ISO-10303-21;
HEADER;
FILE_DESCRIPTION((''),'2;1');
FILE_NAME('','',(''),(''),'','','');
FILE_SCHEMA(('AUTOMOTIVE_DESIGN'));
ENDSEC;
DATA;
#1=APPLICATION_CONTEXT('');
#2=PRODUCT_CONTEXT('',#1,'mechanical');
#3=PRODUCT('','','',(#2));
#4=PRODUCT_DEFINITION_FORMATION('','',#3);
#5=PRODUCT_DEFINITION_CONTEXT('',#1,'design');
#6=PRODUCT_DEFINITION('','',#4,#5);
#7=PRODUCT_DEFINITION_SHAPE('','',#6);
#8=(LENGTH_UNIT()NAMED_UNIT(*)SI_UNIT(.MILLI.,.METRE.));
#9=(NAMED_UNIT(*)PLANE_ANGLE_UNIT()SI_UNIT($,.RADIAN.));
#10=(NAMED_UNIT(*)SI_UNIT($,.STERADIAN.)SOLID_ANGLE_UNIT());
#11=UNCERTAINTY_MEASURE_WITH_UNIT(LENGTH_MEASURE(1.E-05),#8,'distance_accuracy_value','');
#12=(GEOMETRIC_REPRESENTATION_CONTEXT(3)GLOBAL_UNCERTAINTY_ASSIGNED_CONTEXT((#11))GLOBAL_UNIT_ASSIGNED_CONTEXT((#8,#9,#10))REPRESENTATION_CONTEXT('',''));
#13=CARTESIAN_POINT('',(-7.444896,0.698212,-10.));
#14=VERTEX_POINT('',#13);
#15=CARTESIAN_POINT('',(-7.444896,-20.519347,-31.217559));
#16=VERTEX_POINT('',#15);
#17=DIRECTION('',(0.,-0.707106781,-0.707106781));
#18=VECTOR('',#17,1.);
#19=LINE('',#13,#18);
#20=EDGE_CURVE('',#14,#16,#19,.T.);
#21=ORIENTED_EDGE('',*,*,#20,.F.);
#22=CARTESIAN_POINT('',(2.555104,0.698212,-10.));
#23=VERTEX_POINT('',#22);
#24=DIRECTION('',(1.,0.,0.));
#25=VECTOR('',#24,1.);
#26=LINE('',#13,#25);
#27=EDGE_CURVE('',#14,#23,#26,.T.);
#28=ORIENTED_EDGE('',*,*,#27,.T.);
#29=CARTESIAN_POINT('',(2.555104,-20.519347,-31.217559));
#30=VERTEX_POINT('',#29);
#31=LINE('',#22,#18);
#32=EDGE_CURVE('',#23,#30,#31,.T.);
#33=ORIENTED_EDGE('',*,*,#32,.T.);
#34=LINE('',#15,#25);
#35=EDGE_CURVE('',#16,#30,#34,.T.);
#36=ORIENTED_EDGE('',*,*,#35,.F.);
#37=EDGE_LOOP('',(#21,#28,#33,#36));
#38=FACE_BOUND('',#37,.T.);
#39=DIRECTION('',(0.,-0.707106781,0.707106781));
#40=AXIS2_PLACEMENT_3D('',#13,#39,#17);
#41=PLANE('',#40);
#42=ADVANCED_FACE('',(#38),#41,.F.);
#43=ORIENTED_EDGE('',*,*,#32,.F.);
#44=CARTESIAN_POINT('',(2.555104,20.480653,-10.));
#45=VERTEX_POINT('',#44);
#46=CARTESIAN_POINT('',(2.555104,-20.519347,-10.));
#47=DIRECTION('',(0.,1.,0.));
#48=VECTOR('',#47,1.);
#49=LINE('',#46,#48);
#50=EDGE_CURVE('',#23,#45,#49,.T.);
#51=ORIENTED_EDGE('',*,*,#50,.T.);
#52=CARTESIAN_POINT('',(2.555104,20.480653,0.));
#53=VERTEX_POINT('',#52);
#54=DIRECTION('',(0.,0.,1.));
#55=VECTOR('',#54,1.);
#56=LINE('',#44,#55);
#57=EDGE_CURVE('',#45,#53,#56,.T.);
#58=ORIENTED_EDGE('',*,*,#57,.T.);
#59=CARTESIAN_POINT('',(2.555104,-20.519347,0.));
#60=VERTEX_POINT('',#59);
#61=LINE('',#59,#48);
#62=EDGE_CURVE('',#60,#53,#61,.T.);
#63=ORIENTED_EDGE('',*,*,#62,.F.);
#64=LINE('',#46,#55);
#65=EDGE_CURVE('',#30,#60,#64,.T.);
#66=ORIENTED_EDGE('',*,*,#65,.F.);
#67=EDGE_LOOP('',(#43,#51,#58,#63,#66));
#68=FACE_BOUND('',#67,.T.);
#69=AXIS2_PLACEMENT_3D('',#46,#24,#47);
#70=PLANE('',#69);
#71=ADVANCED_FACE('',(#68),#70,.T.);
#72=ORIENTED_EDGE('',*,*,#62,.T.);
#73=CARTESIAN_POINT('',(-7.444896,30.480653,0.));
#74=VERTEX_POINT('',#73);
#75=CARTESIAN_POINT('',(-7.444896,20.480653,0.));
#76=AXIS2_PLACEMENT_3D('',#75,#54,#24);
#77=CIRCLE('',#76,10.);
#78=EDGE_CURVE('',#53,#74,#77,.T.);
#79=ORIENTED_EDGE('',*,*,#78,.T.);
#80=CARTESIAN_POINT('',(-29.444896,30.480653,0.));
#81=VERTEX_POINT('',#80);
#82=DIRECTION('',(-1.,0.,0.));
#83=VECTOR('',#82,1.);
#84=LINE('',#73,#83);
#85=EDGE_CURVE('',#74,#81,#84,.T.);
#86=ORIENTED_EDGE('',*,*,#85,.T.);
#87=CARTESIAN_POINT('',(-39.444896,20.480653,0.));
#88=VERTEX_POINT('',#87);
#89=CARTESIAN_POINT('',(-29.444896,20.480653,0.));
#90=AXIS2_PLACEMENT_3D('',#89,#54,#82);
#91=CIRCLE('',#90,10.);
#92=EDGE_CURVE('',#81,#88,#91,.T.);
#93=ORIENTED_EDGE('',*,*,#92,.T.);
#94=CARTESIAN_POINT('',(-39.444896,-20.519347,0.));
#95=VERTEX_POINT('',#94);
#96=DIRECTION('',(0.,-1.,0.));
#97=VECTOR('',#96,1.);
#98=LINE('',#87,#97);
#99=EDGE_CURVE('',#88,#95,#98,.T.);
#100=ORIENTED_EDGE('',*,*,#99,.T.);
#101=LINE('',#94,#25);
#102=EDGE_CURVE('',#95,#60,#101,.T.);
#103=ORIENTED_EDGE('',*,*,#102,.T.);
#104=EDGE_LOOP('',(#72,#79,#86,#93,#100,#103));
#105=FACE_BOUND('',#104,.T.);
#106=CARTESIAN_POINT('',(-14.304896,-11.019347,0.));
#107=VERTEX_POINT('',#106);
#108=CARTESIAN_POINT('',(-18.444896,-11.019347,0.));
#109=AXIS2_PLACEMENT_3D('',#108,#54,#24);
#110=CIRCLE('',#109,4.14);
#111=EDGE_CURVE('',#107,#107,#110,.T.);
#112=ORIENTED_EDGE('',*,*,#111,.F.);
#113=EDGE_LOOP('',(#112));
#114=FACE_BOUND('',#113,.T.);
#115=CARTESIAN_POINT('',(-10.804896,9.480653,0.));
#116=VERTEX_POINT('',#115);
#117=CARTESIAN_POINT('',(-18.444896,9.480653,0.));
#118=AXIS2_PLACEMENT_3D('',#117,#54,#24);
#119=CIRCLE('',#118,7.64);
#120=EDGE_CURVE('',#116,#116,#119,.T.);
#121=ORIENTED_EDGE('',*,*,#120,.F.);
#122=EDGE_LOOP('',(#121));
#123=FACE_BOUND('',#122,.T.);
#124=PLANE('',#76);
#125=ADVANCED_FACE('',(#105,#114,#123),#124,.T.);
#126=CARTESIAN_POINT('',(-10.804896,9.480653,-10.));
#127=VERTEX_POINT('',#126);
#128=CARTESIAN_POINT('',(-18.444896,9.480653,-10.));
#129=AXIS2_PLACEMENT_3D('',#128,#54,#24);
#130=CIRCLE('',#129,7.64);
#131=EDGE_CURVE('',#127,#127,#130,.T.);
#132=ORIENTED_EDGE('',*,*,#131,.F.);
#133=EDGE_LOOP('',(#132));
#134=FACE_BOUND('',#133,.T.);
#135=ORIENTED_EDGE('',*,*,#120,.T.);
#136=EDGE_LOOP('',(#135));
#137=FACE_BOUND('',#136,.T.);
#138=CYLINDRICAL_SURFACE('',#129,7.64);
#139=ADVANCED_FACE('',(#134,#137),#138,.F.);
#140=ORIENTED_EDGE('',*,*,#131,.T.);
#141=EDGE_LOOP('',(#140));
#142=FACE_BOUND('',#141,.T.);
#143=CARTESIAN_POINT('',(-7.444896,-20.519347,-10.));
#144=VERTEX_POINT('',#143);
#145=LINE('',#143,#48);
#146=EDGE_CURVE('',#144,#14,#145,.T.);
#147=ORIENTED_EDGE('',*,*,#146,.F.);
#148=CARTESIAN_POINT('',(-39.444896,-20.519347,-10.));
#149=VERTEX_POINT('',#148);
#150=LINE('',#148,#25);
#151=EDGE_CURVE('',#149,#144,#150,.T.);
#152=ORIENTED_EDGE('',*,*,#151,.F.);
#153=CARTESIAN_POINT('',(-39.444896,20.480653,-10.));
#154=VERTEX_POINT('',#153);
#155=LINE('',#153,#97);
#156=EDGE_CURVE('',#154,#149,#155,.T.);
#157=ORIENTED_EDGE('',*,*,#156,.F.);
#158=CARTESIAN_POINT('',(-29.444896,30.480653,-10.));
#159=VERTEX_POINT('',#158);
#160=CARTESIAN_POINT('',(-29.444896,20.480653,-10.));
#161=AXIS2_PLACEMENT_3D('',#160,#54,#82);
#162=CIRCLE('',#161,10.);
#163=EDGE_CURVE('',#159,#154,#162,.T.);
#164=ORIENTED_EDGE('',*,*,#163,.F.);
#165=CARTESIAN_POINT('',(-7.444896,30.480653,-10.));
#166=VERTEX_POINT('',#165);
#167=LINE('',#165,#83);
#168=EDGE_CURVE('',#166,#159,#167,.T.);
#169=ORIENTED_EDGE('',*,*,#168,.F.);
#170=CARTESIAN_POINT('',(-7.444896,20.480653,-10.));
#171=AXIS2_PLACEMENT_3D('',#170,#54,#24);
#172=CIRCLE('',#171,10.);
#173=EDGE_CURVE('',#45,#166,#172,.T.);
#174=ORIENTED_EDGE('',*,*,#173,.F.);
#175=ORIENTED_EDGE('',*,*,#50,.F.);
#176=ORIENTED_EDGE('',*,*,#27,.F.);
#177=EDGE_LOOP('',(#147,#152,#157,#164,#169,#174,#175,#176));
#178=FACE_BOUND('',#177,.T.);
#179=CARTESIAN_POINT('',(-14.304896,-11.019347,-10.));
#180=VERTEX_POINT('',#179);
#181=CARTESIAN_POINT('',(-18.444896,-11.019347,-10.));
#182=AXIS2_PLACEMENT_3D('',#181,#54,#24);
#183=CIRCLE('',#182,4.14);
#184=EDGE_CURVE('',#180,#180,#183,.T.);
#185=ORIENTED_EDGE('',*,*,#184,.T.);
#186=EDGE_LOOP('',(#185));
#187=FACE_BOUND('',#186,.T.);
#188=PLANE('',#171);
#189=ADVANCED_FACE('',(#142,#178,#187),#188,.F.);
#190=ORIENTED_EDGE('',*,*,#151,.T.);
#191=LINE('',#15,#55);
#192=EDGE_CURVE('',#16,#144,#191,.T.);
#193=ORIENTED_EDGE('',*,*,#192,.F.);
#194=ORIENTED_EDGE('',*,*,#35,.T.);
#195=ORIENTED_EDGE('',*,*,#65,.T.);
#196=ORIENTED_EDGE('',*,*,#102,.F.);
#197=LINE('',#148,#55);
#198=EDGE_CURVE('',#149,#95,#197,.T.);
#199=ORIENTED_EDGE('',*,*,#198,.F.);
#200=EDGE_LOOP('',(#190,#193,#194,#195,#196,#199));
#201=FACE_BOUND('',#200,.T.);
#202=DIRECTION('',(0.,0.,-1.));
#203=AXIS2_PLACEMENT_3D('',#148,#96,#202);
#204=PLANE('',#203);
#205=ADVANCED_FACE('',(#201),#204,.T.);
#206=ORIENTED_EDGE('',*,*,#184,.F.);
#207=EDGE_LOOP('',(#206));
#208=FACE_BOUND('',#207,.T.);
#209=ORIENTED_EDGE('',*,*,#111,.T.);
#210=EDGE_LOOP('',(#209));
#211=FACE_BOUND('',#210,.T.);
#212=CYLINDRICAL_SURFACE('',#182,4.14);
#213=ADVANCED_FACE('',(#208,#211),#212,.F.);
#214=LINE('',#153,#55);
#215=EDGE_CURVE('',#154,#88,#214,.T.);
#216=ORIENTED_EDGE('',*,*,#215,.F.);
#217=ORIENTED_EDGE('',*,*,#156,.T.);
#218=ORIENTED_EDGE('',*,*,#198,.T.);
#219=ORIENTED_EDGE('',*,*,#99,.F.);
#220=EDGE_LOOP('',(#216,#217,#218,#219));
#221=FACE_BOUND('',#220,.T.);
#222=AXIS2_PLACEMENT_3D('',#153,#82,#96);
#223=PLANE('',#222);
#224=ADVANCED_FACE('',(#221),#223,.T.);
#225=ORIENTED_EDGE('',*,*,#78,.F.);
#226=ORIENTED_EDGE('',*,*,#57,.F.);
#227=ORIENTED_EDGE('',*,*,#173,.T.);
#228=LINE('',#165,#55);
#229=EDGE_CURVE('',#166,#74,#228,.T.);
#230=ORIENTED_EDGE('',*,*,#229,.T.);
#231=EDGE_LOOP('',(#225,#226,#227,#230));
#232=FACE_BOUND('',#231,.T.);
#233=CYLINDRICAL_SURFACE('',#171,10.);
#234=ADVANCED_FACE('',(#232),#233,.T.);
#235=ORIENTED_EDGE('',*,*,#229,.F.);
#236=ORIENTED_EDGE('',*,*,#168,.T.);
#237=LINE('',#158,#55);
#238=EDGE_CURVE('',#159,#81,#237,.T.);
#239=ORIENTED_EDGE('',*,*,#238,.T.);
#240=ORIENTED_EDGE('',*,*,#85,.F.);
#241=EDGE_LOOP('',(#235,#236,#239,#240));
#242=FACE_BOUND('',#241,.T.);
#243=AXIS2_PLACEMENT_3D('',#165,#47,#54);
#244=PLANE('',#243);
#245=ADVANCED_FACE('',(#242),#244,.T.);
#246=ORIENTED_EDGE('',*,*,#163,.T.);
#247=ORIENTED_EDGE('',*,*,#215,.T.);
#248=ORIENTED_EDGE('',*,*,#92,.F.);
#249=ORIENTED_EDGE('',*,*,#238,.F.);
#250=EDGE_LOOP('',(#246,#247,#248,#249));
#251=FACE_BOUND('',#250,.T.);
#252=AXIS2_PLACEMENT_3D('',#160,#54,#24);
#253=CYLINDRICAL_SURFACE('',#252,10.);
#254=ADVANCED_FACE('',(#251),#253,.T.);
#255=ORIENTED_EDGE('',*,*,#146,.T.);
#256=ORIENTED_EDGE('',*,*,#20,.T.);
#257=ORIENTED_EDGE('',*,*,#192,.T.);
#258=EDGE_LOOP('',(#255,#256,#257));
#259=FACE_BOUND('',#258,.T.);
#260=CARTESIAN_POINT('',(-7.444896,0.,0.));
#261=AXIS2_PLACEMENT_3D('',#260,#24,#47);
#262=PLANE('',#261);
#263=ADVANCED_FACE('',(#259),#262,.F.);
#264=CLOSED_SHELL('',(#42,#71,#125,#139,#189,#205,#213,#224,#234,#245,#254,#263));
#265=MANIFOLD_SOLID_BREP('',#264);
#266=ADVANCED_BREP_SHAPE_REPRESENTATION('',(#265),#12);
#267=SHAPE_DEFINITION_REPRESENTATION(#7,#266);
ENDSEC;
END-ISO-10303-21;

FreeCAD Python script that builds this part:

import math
import FreeCAD as App
import Part
import Sketcher
Q = App.Units.Quantity

doc = App.newDocument("Part")
params = doc.addObject("Spreadsheet::Sheet", "Params")
for row, (alias, value) in enumerate([
    ("sketch1_radius", "10 mm"),
    ("sketch1_diameter", "8.28 mm"),
    ("sketch1_diameter2", "15.28 mm"),
    ("sketch1_width", "22 mm"),
    ("sketch1_height", "41 mm"),
    ("pad1_length", "10 mm"),
    ("pad2_length", "10 mm"),
], start=1):
    params.set(f"A{row}", alias)
    params.set(f"B{row}", "=" + value)
    params.setAlias(f"B{row}", alias)

body = doc.addObject("PartDesign::Body", "Body")

sketch1 = body.newObject("Sketcher::SketchObject", "Sketch")
sketch1.AttachmentSupport = (doc.getObject("XY_Plane"), [""])
sketch1.MapMode = "FlatFace"
sketch1.addGeometry(Part.LineSegment(App.Vector(-7.4, 30.5, 0), App.Vector(-29.4, 30.5, 0)), False)
sketch1.addGeometry(Part.ArcOfCircle(Part.Circle(App.Vector(-29.4, 20.5, 0), App.Vector(0, 0, 1), 10), math.radians(90), math.radians(180)), False)
sketch1.addGeometry(Part.LineSegment(App.Vector(-39.4, 20.5, 0), App.Vector(-39.4, -20.5, 0)), False)
sketch1.addGeometry(Part.LineSegment(App.Vector(-39.4, -20.5, 0), App.Vector(2.6, -20.5, 0)), False)
sketch1.addGeometry(Part.LineSegment(App.Vector(2.6, -20.5, 0), App.Vector(2.6, 20.5, 0)), False)
sketch1.addGeometry(Part.ArcOfCircle(Part.Circle(App.Vector(-7.4, 20.5, 0), App.Vector(0, 0, 1), 10), math.radians(0), math.radians(90)), False)
sketch1.addGeometry(Part.Circle(App.Vector(-18.4, -11, 0), App.Vector(0, 0, 1), 4.1), False)
sketch1.addGeometry(Part.Circle(App.Vector(-18.4, 9.5, 0), App.Vector(0, 0, 1), 7.6), False)
sketch1.addConstraint(Sketcher.Constraint("Tangent", 0, 2, 1, 1))
sketch1.addConstraint(Sketcher.Constraint("Tangent", 1, 2, 2, 1))
sketch1.addConstraint(Sketcher.Constraint("Coincident", 2, 2, 3, 1))
sketch1.addConstraint(Sketcher.Constraint("Coincident", 3, 2, 4, 1))
sketch1.addConstraint(Sketcher.Constraint("Tangent", 4, 2, 5, 1))
sketch1.addConstraint(Sketcher.Constraint("Tangent", 5, 2, 0, 1))
sketch1.addConstraint(Sketcher.Constraint("Horizontal", 0))
sketch1.addConstraint(Sketcher.Constraint("Vertical", 2))
sketch1.addConstraint(Sketcher.Constraint("Horizontal", 3))
sketch1.addConstraint(Sketcher.Constraint("Vertical", 4))
sketch1.addConstraint(Sketcher.Constraint("Equal", 1, 5))
sketch1.addConstraint(Sketcher.Constraint("Vertical", 6, 3, 7, 3))
sketch1.addConstraint(Sketcher.Constraint("Radius", 1, Q("10 mm")))
sketch1.addConstraint(Sketcher.Constraint("Diameter", 6, Q("8.28 mm")))
sketch1.addConstraint(Sketcher.Constraint("Diameter", 7, Q("15.28 mm")))
sketch1.addConstraint(Sketcher.Constraint("DistanceX", 0, 2, 0, 1, Q("22 mm")))
sketch1.addConstraint(Sketcher.Constraint("DistanceY", 2, 2, 2, 1, Q("41 mm")))
sketch1.addConstraint(Sketcher.Constraint("DistanceX", 1, 3, 6, 3, Q("11 mm")))
sketch1.addConstraint(Sketcher.Constraint("DistanceY", 7, 3, 1, 3, Q("11 mm")))
sketch1.addConstraint(Sketcher.Constraint("DistanceY", 6, 3, 1, 3, Q("31.5 mm")))
sketch1.addConstraint(Sketcher.Constraint("DistanceX", 1, 3, -1, 1, Q("29.444896 mm")))
sketch1.addConstraint(Sketcher.Constraint("DistanceY", -1, 1, 1, 3, Q("20.480653 mm")))
sketch1.setExpression("Constraints[12]", "Params.sketch1_radius")
sketch1.setExpression("Constraints[13]", "Params.sketch1_diameter")
sketch1.setExpression("Constraints[14]", "Params.sketch1_diameter2")
sketch1.setExpression("Constraints[15]", "Params.sketch1_width")
sketch1.setExpression("Constraints[16]", "Params.sketch1_height")
pad1 = body.newObject("PartDesign::Pad", "Pad")
pad1.Profile = sketch1
pad1.setExpression("Length", "Params.pad1_length")
pad1.Reversed = True

sketch2 = body.newObject("Sketcher::SketchObject", "Sketch001")
sketch2.AttachmentSupport = (doc.getObject("YZ_Plane"), [""])
sketch2.MapMode = "FlatFace"
sketch2.AttachmentOffset = App.Placement(App.Vector(0, 0, 2.555104), App.Rotation())
sketch2.addGeometry(Part.LineSegment(App.Vector(-21, -31, 0), App.Vector(1, -10, 0)), False)
sketch2.addGeometry(Part.LineSegment(App.Vector(1, -10, 0), App.Vector(-21, -10, 0)), False)
sketch2.addGeometry(Part.LineSegment(App.Vector(-21, -10, 0), App.Vector(-21, -31, 0)), False)
sketch2.addConstraint(Sketcher.Constraint("Coincident", 0, 2, 1, 1))
sketch2.addConstraint(Sketcher.Constraint("Coincident", 1, 2, 2, 1))
sketch2.addConstraint(Sketcher.Constraint("Coincident", 2, 2, 0, 1))
sketch2.addConstraint(Sketcher.Constraint("Horizontal", 1))
sketch2.addConstraint(Sketcher.Constraint("Vertical", 2))
sketch2.addConstraint(Sketcher.Constraint("Equal", 1, 2))
sketch2.addConstraint(Sketcher.Constraint("DistanceY", 0, 2, -1, 1, Q("10 mm")))
sketch2.addConstraint(Sketcher.Constraint("DistanceX", 1, 2, 1, 1, Q("21.217559 mm")))
sketch2.addConstraint(Sketcher.Constraint("DistanceX", -1, 1, 0, 2, Q("0.698212 mm")))
pad2 = body.newObject("PartDesign::Pad", "Pad001")
pad2.Profile = sketch2
pad2.setExpression("Length", "Params.pad2_length")
pad2.Reversed = True

doc.recompute()
